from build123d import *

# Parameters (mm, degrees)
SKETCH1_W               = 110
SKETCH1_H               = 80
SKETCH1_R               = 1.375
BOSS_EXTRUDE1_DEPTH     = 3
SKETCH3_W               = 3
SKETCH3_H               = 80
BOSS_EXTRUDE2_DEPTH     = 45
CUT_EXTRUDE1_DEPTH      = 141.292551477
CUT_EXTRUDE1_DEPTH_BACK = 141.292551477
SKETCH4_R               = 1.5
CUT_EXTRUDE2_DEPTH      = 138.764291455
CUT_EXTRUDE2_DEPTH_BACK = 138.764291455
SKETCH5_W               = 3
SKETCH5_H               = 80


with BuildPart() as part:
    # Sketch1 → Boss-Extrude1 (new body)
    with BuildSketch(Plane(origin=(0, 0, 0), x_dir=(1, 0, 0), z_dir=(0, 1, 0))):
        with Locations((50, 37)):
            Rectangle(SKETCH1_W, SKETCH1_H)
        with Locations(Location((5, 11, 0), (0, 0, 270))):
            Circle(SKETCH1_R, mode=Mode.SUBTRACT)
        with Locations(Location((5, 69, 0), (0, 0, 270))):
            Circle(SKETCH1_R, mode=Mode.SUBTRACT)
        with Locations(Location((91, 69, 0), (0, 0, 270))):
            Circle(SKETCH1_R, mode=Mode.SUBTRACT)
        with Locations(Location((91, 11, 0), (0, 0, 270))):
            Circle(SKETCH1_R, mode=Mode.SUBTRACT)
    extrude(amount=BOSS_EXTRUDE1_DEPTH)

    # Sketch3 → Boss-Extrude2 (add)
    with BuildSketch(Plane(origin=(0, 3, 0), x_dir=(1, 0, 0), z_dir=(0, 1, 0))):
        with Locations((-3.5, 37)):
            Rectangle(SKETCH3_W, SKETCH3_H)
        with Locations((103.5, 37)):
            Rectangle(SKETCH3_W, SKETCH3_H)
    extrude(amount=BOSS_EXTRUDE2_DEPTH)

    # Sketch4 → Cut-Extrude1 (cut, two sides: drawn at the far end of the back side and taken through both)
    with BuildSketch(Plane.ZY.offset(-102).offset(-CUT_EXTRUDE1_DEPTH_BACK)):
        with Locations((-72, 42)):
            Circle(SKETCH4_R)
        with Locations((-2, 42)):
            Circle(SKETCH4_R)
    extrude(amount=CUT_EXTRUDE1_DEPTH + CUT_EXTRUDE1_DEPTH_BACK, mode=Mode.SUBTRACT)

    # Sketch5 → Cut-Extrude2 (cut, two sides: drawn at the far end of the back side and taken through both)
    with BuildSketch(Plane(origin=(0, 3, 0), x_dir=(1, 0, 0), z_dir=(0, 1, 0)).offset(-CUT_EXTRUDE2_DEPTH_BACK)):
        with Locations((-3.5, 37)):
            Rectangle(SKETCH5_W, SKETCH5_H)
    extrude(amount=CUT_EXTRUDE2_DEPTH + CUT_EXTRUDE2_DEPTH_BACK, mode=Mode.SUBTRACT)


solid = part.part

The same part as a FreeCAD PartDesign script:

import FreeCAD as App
import Part
import Sketcher
from FreeCAD import Vector

doc = App.newDocument("Part")
params = doc.addObject("Spreadsheet::Sheet", "Params")
for row, (alias, value) in enumerate([
    ("sketch1_diameter", "2.75 mm"),
    ("sketch1_width", "110 mm"),
    ("sketch1_height", "80 mm"),
    ("pad1_length", "3 mm"),
    ("sketch2_width", "3 mm"),
    ("sketch2_height", "80 mm"),
    ("pad2_length", "45 mm"),
    ("sketch3_diameter", "3 mm"),
    ("sketch4_width", "3 mm"),
    ("sketch4_height", "80 mm"),
], start=1):
    params.set(f"A{row}", alias)
    params.set(f"B{row}", "=" + value)
    params.setAlias(f"B{row}", alias)

body = doc.addObject("PartDesign::Body", "Body")

# Sketch on XZ plane
sketch1 = body.newObject("Sketcher::SketchObject", "Sketch")
sketch1.AttachmentSupport = (doc.getObject("XZ_Plane"), [""])
sketch1.MapMode = "FlatFace"
sketch1.addGeometry([
    Part.LineSegment(Vector(-5, -77, 0), Vector(-5, 3, 0)),  # 0
    Part.LineSegment(Vector(-5, 3, 0), Vector(105, 3, 0)),  # 1
    Part.LineSegment(Vector(105, 3, 0), Vector(105, -77, 0)),  # 2
    Part.LineSegment(Vector(105, -77, 0), Vector(-5, -77, 0)),  # 3
    Part.Circle(Vector(5, -11, 0), Vector(0, 0, 1), 1.4),  # 4
    Part.Circle(Vector(91, -11, 0), Vector(0, 0, 1), 1.4),  # 5
    Part.Circle(Vector(5, -69, 0), Vector(0, 0, 1), 1.4),  # 6
    Part.Circle(Vector(91, -69, 0), Vector(0, 0, 1), 1.4),  # 7
], False)
sketch1.addConstraint([
    Sketcher.Constraint("Coincident", 0, 2, 1, 1),
    Sketcher.Constraint("Coincident", 1, 2, 2, 1),
    Sketcher.Constraint("Coincident", 2, 2, 3, 1),
    Sketcher.Constraint("Coincident", 3, 2, 0, 1),
    Sketcher.Constraint("Vertical", 0),
    Sketcher.Constraint("Horizontal", 1),
    Sketcher.Constraint("Vertical", 2),
    Sketcher.Constraint("Horizontal", 3),
    Sketcher.Constraint("Equal", 4, 5),
    Sketcher.Constraint("Equal", 5, 6),
    Sketcher.Constraint("Equal", 6, 7),
    Sketcher.Constraint("Horizontal", 4, 3, 5, 3),
    Sketcher.Constraint("Horizontal", 6, 3, 7, 3),
    Sketcher.Constraint("Vertical", 4, 3, 6, 3),
    Sketcher.Constraint("Vertical", 5, 3, 7, 3),
    Sketcher.Constraint("Diameter", 4, 2.75),
    Sketcher.Constraint("DistanceX", 1, 1, 1, 2, 110.0),
    Sketcher.Constraint("DistanceY", 0, 1, 0, 2, 80.0),
    Sketcher.Constraint("DistanceX", -1, 1, 4, 3, 5.0),
    Sketcher.Constraint("DistanceY", 4, 3, -1, 1, 11.0),
    Sketcher.Constraint("DistanceX", -1, 1, 5, 3, 91.0),
    Sketcher.Constraint("DistanceY", 6, 3, -1, 1, 69.0),
    Sketcher.Constraint("DistanceX", 0, 2, -1, 1, 5.0),
    Sketcher.Constraint("DistanceY", -1, 1, 0, 2, 3.0),
])
sketch1.setExpression("Constraints[15]", "Params.sketch1_diameter")
sketch1.setExpression("Constraints[16]", "Params.sketch1_width")
sketch1.setExpression("Constraints[17]", "Params.sketch1_height")
pad1 = body.newObject("PartDesign::Pad", "Pad")
pad1.Profile = sketch1
pad1.setExpression("Length", "Params.pad1_length")
pad1.Reversed = True

# Sketch on XZ plane
sketch2 = body.newObject("Sketcher::SketchObject", "Sketch001")
sketch2.AttachmentSupport = (doc.getObject("XZ_Plane"), [""])
sketch2.MapMode = "FlatFace"
sketch2.AttachmentOffset = App.Placement(Vector(0, 0, -3), App.Rotation())
sketch2.addGeometry([
    Part.LineSegment(Vector(-5, -77, 0), Vector(-5, 3, 0)),  # 0
    Part.LineSegment(Vector(-5, 3, 0), Vector(-2, 3, 0)),  # 1
    Part.LineSegment(Vector(-2, 3, 0), Vector(-2, -77, 0)),  # 2
    Part.LineSegment(Vector(-2, -77, 0), Vector(-5, -77, 0)),  # 3
    Part.LineSegment(Vector(102, -77, 0), Vector(102, 3, 0)),  # 4
    Part.LineSegment(Vector(102, 3, 0), Vector(105, 3, 0)),  # 5
    Part.LineSegment(Vector(105, 3, 0), Vector(105, -77, 0)),  # 6
    Part.LineSegment(Vector(105, -77, 0), Vector(102, -77, 0)),  # 7
], False)
sketch2.addConstraint([
    Sketcher.Constraint("Coincident", 0, 2, 1, 1),
    Sketcher.Constraint("Coincident", 1, 2, 2, 1),
    Sketcher.Constraint("Coincident", 2, 2, 3, 1),
    Sketcher.Constraint("Coincident", 3, 2, 0, 1),
    Sketcher.Constraint("Coincident", 4, 2, 5, 1),
    Sketcher.Constraint("Coincident", 5, 2, 6, 1),
    Sketcher.Constraint("Coincident", 6, 2, 7, 1),
    Sketcher.Constraint("Coincident", 7, 2, 4, 1),
    Sketcher.Constraint("Vertical", 0),
    Sketcher.Constraint("Horizontal", 1),
    Sketcher.Constraint("Vertical", 2),
    Sketcher.Constraint("Horizontal", 3),
    Sketcher.Constraint("Vertical", 4),
    Sketcher.Constraint("Horizontal", 5),
    Sketcher.Constraint("Vertical", 6),
    Sketcher.Constraint("Horizontal", 7),
    Sketcher.Constraint("Horizontal", 1, 2, 4, 2),
    Sketcher.Constraint("Horizontal", 3, 2, 6, 2),
    Sketcher.Constraint("Equal", 3, 5),
    Sketcher.Constraint("DistanceX", 1, 1, 1, 2, 3.0),
    Sketcher.Constraint("DistanceY", 0, 1, 0, 2, 80.0),
    Sketcher.Constraint("DistanceX", 0, 2, -1, 1, 5.0),
    Sketcher.Constraint("DistanceY", -1, 1, 0, 2, 3.0),
    Sketcher.Constraint("DistanceX", -1, 1, 4, 2, 102.0),
])
sketch2.setExpression("Constraints[19]", "Params.sketch2_width")
sketch2.setExpression("Constraints[20]", "Params.sketch2_height")
pad2 = body.newObject("PartDesign::Pad", "Pad001")
pad2.Profile = sketch2
pad2.setExpression("Length", "Params.pad2_length")
pad2.Reversed = True

# Sketch on YZ plane
sketch3 = body.newObject("Sketcher::SketchObject", "Sketch002")
sketch3.AttachmentSupport = (doc.getObject("YZ_Plane"), [""])
sketch3.MapMode = "FlatFace"
sketch3.AttachmentOffset = App.Placement(Vector(0, 0, 102), App.Rotation())
sketch3.addGeometry([
    Part.Circle(Vector(42, -72, 0), Vector(0, 0, 1), 1.5),
    Part.Circle(Vector(42, -2, 0), Vector(0, 0, 1), 1.5),
], False)
sketch3.addConstraint([
    Sketcher.Constraint("Equal", 0, 1),
    Sketcher.Constraint("Vertical", 0, 3, 1, 3),
    Sketcher.Constraint("Diameter", 0, 3.0),
    Sketcher.Constraint("DistanceX", -1, 1, 0, 3, 42.0),
    Sketcher.Constraint("DistanceY", 0, 3, -1, 1, 72.0),
    Sketcher.Constraint("DistanceY", 1, 3, -1, 1, 2.0),
])
sketch3.setExpression("Constraints[2]", "Params.sketch3_diameter")
pocket1 = body.newObject("PartDesign::Pocket", "Pocket")
pocket1.Profile = sketch3
pocket1.Type = "ThroughAll"
pocket1.Midplane = True

# Sketch on XZ plane
sketch4 = body.newObject("Sketcher::SketchObject", "Sketch003")
sketch4.AttachmentSupport = (doc.getObject("XZ_Plane"), [""])
sketch4.MapMode = "FlatFace"
sketch4.AttachmentOffset = App.Placement(Vector(0, 0, -3), App.Rotation())
sketch4.addGeometry([
    Part.LineSegment(Vector(-5, -77, 0), Vector(-5, 3, 0)),
    Part.LineSegment(Vector(-5, 3, 0), Vector(-2, 3, 0)),
    Part.LineSegment(Vector(-2, 3, 0), Vector(-2, -77, 0)),
    Part.LineSegment(Vector(-2, -77, 0), Vector(-5, -77, 0)),
], False)
sketch4.addConstraint([
    Sketcher.Constraint("Coincident", 0, 2, 1, 1),
    Sketcher.Constraint("Coincident", 1, 2, 2, 1),
    Sketcher.Constraint("Coincident", 2, 2, 3, 1),
    Sketcher.Constraint("Coincident", 3, 2, 0, 1),
    Sketcher.Constraint("Vertical", 0),
    Sketcher.Constraint("Horizontal", 1),
    Sketcher.Constraint("Vertical", 2),
    Sketcher.Constraint("Horizontal", 3),
    Sketcher.Constraint("DistanceX", 1, 1, 1, 2, 3.0),
    Sketcher.Constraint("DistanceY", 0, 1, 0, 2, 80.0),
    Sketcher.Constraint("DistanceX", 0, 2, -1, 1, 5.0),
    Sketcher.Constraint("DistanceY", -1, 1, 0, 2, 3.0),
])
sketch4.setExpression("Constraints[8]", "Params.sketch4_width")
sketch4.setExpression("Constraints[9]", "Params.sketch4_height")
pocket2 = body.newObject("PartDesign::Pocket", "Pocket001")
pocket2.Profile = sketch4
pocket2.Type = "ThroughAll"
pocket2.Midplane = True

doc.recompute()
